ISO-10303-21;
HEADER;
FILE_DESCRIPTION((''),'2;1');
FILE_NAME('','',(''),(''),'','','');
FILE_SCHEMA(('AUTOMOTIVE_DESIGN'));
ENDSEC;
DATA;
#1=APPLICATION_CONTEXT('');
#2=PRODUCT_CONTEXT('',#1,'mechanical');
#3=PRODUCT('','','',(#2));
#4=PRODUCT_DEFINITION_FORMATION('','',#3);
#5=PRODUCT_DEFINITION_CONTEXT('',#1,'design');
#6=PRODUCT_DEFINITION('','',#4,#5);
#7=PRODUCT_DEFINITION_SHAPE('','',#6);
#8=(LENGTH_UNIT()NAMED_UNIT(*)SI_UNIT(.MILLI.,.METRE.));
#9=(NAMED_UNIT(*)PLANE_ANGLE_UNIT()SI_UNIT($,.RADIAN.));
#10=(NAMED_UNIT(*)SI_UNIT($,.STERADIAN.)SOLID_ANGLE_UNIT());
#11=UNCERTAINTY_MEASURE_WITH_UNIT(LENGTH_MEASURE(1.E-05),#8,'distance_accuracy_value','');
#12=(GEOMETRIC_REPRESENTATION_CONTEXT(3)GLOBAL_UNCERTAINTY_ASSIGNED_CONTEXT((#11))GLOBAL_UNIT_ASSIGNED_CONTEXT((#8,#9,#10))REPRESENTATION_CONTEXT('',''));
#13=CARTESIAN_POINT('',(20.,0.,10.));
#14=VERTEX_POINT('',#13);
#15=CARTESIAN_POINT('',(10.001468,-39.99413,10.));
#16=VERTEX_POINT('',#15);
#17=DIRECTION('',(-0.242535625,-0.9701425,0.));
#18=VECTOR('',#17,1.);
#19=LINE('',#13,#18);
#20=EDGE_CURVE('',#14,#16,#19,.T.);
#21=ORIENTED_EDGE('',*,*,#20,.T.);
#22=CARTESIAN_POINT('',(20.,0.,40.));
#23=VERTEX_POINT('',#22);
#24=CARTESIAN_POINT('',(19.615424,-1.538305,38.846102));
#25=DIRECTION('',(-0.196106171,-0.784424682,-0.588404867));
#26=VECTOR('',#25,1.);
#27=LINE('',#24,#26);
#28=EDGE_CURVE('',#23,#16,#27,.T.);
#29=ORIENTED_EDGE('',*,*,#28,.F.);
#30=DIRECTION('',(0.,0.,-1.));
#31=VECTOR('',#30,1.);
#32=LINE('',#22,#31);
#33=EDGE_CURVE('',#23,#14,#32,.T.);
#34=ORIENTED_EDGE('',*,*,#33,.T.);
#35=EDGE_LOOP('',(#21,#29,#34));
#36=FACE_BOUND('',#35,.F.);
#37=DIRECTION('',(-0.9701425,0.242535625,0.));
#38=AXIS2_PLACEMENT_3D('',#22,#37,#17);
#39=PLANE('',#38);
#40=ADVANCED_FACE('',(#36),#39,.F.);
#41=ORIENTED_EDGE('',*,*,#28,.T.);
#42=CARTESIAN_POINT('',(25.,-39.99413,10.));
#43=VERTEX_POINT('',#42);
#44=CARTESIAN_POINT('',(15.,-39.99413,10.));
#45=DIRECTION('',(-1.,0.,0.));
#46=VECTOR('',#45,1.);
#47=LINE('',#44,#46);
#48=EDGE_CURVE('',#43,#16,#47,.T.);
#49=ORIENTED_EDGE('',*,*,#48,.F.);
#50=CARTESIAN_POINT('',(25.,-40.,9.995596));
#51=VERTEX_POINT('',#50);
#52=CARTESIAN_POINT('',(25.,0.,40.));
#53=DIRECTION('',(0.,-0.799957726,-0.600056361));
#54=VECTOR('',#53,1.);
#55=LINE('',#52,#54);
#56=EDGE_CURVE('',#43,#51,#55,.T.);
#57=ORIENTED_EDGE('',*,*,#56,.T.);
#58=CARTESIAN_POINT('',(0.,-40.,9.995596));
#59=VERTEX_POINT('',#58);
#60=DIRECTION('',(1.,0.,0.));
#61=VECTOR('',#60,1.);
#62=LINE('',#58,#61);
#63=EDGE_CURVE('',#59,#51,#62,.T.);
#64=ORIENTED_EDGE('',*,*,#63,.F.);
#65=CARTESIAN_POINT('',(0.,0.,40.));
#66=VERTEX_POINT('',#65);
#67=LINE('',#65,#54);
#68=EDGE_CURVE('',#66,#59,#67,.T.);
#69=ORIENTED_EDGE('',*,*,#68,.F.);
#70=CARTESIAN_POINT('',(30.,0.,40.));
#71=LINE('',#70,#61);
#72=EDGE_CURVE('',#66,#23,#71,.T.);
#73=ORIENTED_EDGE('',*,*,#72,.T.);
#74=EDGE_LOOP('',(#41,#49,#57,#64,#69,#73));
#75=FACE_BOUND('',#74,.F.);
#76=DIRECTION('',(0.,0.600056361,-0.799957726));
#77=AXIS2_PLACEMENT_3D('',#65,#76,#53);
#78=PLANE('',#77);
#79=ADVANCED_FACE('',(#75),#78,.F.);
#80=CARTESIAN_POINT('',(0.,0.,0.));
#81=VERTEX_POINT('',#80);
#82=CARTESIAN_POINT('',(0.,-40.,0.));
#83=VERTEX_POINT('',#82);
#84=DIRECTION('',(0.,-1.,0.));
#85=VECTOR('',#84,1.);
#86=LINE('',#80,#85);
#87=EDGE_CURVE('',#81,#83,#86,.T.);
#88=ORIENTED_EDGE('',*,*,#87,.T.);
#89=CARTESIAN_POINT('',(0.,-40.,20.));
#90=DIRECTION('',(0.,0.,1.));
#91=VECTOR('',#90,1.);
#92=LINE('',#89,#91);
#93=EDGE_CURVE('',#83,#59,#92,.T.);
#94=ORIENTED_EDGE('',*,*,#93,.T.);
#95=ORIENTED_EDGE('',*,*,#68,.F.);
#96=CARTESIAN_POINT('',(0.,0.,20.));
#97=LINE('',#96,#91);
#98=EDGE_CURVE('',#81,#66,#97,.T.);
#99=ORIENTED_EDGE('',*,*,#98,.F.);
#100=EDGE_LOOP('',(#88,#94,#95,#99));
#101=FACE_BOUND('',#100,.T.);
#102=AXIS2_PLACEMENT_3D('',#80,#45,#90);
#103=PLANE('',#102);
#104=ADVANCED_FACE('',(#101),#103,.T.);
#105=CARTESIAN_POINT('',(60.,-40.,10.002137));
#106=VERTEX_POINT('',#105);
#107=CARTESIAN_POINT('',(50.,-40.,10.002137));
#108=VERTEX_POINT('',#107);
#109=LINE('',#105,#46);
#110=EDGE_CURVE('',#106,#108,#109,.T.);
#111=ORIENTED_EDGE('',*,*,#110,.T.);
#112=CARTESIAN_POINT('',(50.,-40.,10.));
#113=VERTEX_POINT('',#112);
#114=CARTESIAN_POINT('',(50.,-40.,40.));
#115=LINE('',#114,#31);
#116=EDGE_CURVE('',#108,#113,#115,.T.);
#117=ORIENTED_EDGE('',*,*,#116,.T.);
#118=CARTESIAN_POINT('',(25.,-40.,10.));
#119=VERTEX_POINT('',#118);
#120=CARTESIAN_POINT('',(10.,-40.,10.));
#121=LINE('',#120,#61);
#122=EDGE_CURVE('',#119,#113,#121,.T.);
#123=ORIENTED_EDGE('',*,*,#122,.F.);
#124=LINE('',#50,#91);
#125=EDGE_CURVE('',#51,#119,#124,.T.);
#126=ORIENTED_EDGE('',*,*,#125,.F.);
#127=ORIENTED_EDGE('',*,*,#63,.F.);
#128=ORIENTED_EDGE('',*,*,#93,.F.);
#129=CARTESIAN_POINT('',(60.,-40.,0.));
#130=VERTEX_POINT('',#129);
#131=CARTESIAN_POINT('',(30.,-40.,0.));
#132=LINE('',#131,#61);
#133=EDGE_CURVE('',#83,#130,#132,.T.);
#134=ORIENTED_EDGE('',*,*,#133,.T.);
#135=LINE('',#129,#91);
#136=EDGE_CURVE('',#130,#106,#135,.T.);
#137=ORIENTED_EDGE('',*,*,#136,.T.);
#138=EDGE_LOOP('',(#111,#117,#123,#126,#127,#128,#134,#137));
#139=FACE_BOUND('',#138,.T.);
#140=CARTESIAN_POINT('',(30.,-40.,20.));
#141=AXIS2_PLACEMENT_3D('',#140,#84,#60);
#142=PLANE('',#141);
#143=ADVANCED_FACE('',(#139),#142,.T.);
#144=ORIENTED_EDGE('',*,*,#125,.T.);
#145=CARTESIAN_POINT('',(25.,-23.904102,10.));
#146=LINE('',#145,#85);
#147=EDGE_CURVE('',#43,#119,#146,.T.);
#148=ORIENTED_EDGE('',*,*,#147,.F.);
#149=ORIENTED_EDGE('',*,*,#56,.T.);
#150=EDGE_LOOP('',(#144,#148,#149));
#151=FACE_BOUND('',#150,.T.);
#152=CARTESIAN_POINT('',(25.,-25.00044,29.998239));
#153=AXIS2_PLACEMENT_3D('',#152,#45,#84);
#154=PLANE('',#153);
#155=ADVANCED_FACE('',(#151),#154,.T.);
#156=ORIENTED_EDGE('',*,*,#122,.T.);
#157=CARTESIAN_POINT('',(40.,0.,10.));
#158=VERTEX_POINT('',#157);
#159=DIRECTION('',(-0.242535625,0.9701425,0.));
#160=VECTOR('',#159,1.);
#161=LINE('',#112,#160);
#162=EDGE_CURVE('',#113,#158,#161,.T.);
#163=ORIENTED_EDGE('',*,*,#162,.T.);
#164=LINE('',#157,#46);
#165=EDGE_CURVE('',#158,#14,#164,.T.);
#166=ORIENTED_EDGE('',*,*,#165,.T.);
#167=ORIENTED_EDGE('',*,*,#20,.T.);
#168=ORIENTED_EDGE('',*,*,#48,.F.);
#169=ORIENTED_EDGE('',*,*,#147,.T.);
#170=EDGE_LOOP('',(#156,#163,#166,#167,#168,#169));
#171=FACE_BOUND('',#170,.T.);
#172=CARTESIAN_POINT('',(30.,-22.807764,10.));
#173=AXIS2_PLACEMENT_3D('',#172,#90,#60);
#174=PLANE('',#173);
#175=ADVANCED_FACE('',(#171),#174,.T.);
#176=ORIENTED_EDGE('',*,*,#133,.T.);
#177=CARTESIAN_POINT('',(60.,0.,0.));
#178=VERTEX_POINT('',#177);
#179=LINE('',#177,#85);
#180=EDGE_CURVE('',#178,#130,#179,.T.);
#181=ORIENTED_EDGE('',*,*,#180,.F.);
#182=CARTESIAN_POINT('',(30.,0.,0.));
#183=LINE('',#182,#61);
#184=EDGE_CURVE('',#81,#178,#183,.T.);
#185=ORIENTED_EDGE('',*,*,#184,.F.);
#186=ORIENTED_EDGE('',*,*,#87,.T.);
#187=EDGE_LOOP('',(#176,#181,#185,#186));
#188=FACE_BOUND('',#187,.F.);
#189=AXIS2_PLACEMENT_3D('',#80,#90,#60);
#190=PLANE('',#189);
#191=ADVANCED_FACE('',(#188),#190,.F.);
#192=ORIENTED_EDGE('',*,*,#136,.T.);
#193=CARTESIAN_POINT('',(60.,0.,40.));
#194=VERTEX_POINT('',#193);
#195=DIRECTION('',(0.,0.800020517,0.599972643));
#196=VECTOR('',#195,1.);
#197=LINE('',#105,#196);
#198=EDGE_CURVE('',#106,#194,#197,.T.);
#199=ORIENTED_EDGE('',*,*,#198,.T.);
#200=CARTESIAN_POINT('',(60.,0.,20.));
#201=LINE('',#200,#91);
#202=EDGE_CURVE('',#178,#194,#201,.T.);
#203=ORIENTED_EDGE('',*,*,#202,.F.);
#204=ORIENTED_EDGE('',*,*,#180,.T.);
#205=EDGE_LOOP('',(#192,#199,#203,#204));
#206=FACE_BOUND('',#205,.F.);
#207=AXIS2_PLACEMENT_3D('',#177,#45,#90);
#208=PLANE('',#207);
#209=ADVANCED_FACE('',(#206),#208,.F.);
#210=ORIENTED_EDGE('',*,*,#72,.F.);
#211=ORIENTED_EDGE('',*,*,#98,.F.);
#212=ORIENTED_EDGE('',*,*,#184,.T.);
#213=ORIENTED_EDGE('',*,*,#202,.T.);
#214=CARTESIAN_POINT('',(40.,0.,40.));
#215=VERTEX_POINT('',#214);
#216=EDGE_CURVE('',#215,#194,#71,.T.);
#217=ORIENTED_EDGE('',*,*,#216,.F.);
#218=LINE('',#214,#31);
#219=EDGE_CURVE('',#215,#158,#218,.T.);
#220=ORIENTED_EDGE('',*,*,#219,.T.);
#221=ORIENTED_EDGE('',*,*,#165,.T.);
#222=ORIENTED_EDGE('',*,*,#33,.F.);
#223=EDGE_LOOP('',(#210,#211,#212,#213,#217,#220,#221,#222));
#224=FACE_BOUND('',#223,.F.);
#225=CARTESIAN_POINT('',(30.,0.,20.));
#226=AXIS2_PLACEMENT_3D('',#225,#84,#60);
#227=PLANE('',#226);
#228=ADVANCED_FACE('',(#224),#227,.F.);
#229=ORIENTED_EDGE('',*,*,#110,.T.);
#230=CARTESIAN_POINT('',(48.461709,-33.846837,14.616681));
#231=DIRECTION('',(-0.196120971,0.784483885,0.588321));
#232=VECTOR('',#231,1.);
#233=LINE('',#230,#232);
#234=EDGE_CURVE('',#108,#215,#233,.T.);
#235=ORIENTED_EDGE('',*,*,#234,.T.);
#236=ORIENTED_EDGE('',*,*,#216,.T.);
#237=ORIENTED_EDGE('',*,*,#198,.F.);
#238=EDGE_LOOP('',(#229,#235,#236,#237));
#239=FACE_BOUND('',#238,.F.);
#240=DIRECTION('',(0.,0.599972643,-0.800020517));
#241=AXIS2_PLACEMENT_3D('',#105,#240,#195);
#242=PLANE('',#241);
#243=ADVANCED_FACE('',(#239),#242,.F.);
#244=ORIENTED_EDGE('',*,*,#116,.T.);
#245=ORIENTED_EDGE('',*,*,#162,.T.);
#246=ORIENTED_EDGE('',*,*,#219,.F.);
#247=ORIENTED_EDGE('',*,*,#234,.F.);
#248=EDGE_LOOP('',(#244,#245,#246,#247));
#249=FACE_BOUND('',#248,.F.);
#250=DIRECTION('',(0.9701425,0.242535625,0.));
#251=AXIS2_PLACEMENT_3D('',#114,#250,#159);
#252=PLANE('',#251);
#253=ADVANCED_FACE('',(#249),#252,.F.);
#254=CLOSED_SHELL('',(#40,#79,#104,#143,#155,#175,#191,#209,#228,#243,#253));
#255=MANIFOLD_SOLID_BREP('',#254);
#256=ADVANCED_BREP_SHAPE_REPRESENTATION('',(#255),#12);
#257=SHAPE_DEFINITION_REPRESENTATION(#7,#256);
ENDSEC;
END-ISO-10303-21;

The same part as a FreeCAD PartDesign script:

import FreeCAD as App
import Part
import Sketcher
from FreeCAD import Vector

doc = App.newDocument("Part")
body = doc.addObject("PartDesign::Body", "Body")

# Sketch on XZ plane
sketch1 = doc.addObject("Sketcher::SketchObject", "Sketch")
body.addObject(sketch1)
sketch1.AttachmentSupport = (doc.XZ_Plane, [""])
sketch1.MapMode = "FlatFace"
sketch1.addGeometry([
    Part.LineSegment(Vector(0, 40, 0), Vector(0, 0, 0)),
    Part.LineSegment(Vector(0, 0, 0), Vector(60, 0, 0)),
    Part.LineSegment(Vector(60, 0, 0), Vector(60, 40, 0)),
    Part.LineSegment(Vector(60, 40, 0), Vector(0, 40, 0)),
], False)
sketch1.addConstraint([
    Sketcher.Constraint("Coincident", 0, 2, 1, 1),
    Sketcher.Constraint("Coincident", 1, 2, 2, 1),
    Sketcher.Constraint("Coincident", 2, 2, 3, 1),
    Sketcher.Constraint("Coincident", 3, 2, 0, 1),
    Sketcher.Constraint("Vertical", 0),
    Sketcher.Constraint("Horizontal", 1),
    Sketcher.Constraint("Vertical", 2),
    Sketcher.Constraint("Horizontal", 3),
    Sketcher.Constraint("Coincident", 0, 2, -1, 1),
    Sketcher.Constraint("DistanceX", 1, 1, 1, 2, 60.0),
    Sketcher.Constraint("DistanceY", 0, 2, 0, 1, 40.0),
])
pad1 = doc.addObject("PartDesign::Pad", "Pad")
body.addObject(pad1)
pad1.Profile = sketch1
pad1.Length = 40

# Sketch on XY plane
sketch2 = doc.addObject("Sketcher::SketchObject", "Sketch001")
body.addObject(sketch2)
sketch2.AttachmentSupport = (doc.XY_Plane, [""])
sketch2.MapMode = "FlatFace"
sketch2.AttachmentOffset = App.Placement(Vector(0, 0, 40), App.Rotation())
sketch2.addGeometry([
    Part.LineSegment(Vector(40, 0, 0), Vector(20, 0, 0)),
    Part.LineSegment(Vector(20, 0, 0), Vector(10, -40, 0)),
    Part.LineSegment(Vector(10, -40, 0), Vector(50, -40, 0)),
    Part.LineSegment(Vector(50, -40, 0), Vector(40, 0, 0)),
], False)
sketch2.addConstraint([
    Sketcher.Constraint("Coincident", 0, 2, 1, 1),
    Sketcher.Constraint("Coincident", 1, 2, 2, 1),
    Sketcher.Constraint("Coincident", 2, 2, 3, 1),
    Sketcher.Constraint("Coincident", 3, 2, 0, 1),
    Sketcher.Constraint("Horizontal", 0),
    Sketcher.Constraint("Horizontal", 2),
    Sketcher.Constraint("PointOnObject", 0, 2, -1),
    Sketcher.Constraint("Equal", 1, 3),
    Sketcher.Constraint("DistanceX", 0, 2, 0, 1, 20.0),
    Sketcher.Constraint("DistanceX", 2, 1, 2, 2, 40.0),
    Sketcher.Constraint("DistanceX", -1, 1, 0, 2, 20.0),
    Sketcher.Constraint("DistanceY", 1, 2, -1, 1, 40.0),
])
pocket1 = doc.addObject("PartDesign::Pocket", "Pocket")
body.addObject(pocket1)
pocket1.Profile = sketch2
pocket1.Length = 30

# Sketch on YZ plane
sketch3 = doc.addObject("Sketcher::SketchObject", "Sketch002")
body.addObject(sketch3)
sketch3.AttachmentSupport = (doc.YZ_Plane, [""])
sketch3.MapMode = "FlatFace"
sketch3.addGeometry([
    Part.LineSegment(Vector(-40, 40, 0), Vector(0, 40, 0)),
    Part.LineSegment(Vector(0, 40, 0), Vector(-40, 9.995596, 0)),
    Part.LineSegment(Vector(-40, 9.995596, 0), Vector(-40, 40, 0)),
], False)
sketch3.addConstraint([
    Sketcher.Constraint("Coincident", 0, 2, 1, 1),
    Sketcher.Constraint("Coincident", 1, 2, 2, 1),
    Sketcher.Constraint("Coincident", 2, 2, 0, 1),
    Sketcher.Constraint("Horizontal", 0),
    Sketcher.Constraint("Vertical", 2),
    Sketcher.Constraint("PointOnObject", 0, 2, -2),
    Sketcher.Constraint("DistanceX", 0, 1, 0, 2, 40.0),
    Sketcher.Constraint("DistanceY", -1, 1, 0, 2, 40.0),
    Sketcher.Constraint("DistanceY", 2, 1, 2, 2, 30.004404),
])
pocket2 = doc.addObject("PartDesign::Pocket", "Pocket001")
body.addObject(pocket2)
pocket2.Profile = sketch3
pocket2.Length = 25
pocket2.Reversed = True

# Sketch on XZ plane
sketch4 = doc.addObject("Sketcher::SketchObject", "Sketch003")
body.addObject(sketch4)
sketch4.AttachmentSupport = (doc.XZ_Plane, [""])
sketch4.MapMode = "FlatFace"
sketch4.AttachmentOffset = App.Placement(Vector(0, 0, 40), App.Rotation())
sketch4.addGeometry([
    Part.LineSegment(Vector(0, 40, 0), Vector(0, 10, 0)),
    Part.LineSegment(Vector(0, 10, 0), Vector(10, 10, 0)),
    Part.LineSegment(Vector(10, 10, 0), Vector(10, 40, 0)),
    Part.LineSegment(Vector(10, 40, 0), Vector(0, 40, 0)),
], False)
sketch4.addConstraint([
    Sketcher.Constraint("Coincident", 0, 2, 1, 1),
    Sketcher.Constraint("Coincident", 1, 2, 2, 1),
    Sketcher.Constraint("Coincident", 2, 2, 3, 1),
    Sketcher.Constraint("Coincident", 3, 2, 0, 1),
    Sketcher.Constraint("Vertical", 0),
    Sketcher.Constraint("Horizontal", 1),
    Sketcher.Constraint("Vertical", 2),
    Sketcher.Constraint("Horizontal", 3),
    Sketcher.Constraint("PointOnObject", 0, 2, -2),
    Sketcher.Constraint("DistanceX", 1, 1, 1, 2, 10.0),
    Sketcher.Constraint("DistanceY", 0, 2, 0, 1, 30.0),
    Sketcher.Constraint("DistanceY", -1, 1, 0, 2, 10.0),
])
pocket3 = doc.addObject("PartDesign::Pocket", "Pocket002")
body.addObject(pocket3)
pocket3.Profile = sketch4
pocket3.Length = 25
pocket3.Reversed = True

# Sketch on YZ plane
sketch5 = doc.addObject("Sketcher::SketchObject", "Sketch004")
body.addObject(sketch5)
sketch5.AttachmentSupport = (doc.YZ_Plane, [""])
sketch5.MapMode = "FlatFace"
sketch5.AttachmentOffset = App.Placement(Vector(0, 0, 60), App.Rotation())
sketch5.addGeometry([
    Part.LineSegment(Vector(-40, 10.002137, 0), Vector(0, 40, 0)),
    Part.LineSegment(Vector(0, 40, 0), Vector(-40, 40, 0)),
    Part.LineSegment(Vector(-40, 40, 0), Vector(-40, 10.002137, 0)),
], False)
sketch5.addConstraint([
    Sketcher.Constraint("Coincident", 0, 2, 1, 1),
    Sketcher.Constraint("Coincident", 1, 2, 2, 1),
    Sketcher.Constraint("Coincident", 2, 2, 0, 1),
    Sketcher.Constraint("Horizontal", 1),
    Sketcher.Constraint("Vertical", 2),
    Sketcher.Constraint("PointOnObject", 0, 2, -2),
    Sketcher.Constraint("DistanceX", 1, 2, 1, 1, 40.0),
    Sketcher.Constraint("DistanceY", -1, 1, 0, 2, 40.0),
    Sketcher.Constraint("DistanceY", 2, 2, 2, 1, 29.997863),
])
pocket4 = doc.addObject("PartDesign::Pocket", "Pocket003")
body.addObject(pocket4)
pocket4.Profile = sketch5
pocket4.Length = 25

# Sketch on XZ plane
sketch6 = doc.addObject("Sketcher::SketchObject", "Sketch005")
body.addObject(sketch6)
sketch6.AttachmentSupport = (doc.XZ_Plane, [""])
sketch6.MapMode = "FlatFace"
sketch6.AttachmentOffset = App.Placement(Vector(0, 0, 40), App.Rotation())
sketch6.addGeometry([
    Part.LineSegment(Vector(50, 40, 0), Vector(50, 10, 0)),
    Part.LineSegment(Vector(50, 10, 0), Vector(60, 10, 0)),
    Part.LineSegment(Vector(60, 10, 0), Vector(60, 40, 0)),
    Part.LineSegment(Vector(60, 40, 0), Vector(50, 40, 0)),
], False)
sketch6.addConstraint([
    Sketcher.Constraint("Coincident", 0, 2, 1, 1),
    Sketcher.Constraint("Coincident", 1, 2, 2, 1),
    Sketcher.Constraint("Coincident", 2, 2, 3, 1),
    Sketcher.Constraint("Coincident", 3, 2, 0, 1),
    Sketcher.Constraint("Vertical", 0),
    Sketcher.Constraint("Horizontal", 1),
    Sketcher.Constraint("Vertical", 2),
    Sketcher.Constraint("Horizontal", 3),
    Sketcher.Constraint("DistanceX", 1, 1, 1, 2, 10.0),
    Sketcher.Constraint("DistanceY", 0, 2, 0, 1, 30.0),
    Sketcher.Constraint("DistanceX", -1, 1, 0, 2, 50.0),
    Sketcher.Constraint("DistanceY", -1, 1, 0, 2, 10.0),
])
pocket5 = doc.addObject("PartDesign::Pocket", "Pocket004")
body.addObject(pocket5)
pocket5.Profile = sketch6
pocket5.Length = 25
pocket5.Reversed = True

doc.recompute()
